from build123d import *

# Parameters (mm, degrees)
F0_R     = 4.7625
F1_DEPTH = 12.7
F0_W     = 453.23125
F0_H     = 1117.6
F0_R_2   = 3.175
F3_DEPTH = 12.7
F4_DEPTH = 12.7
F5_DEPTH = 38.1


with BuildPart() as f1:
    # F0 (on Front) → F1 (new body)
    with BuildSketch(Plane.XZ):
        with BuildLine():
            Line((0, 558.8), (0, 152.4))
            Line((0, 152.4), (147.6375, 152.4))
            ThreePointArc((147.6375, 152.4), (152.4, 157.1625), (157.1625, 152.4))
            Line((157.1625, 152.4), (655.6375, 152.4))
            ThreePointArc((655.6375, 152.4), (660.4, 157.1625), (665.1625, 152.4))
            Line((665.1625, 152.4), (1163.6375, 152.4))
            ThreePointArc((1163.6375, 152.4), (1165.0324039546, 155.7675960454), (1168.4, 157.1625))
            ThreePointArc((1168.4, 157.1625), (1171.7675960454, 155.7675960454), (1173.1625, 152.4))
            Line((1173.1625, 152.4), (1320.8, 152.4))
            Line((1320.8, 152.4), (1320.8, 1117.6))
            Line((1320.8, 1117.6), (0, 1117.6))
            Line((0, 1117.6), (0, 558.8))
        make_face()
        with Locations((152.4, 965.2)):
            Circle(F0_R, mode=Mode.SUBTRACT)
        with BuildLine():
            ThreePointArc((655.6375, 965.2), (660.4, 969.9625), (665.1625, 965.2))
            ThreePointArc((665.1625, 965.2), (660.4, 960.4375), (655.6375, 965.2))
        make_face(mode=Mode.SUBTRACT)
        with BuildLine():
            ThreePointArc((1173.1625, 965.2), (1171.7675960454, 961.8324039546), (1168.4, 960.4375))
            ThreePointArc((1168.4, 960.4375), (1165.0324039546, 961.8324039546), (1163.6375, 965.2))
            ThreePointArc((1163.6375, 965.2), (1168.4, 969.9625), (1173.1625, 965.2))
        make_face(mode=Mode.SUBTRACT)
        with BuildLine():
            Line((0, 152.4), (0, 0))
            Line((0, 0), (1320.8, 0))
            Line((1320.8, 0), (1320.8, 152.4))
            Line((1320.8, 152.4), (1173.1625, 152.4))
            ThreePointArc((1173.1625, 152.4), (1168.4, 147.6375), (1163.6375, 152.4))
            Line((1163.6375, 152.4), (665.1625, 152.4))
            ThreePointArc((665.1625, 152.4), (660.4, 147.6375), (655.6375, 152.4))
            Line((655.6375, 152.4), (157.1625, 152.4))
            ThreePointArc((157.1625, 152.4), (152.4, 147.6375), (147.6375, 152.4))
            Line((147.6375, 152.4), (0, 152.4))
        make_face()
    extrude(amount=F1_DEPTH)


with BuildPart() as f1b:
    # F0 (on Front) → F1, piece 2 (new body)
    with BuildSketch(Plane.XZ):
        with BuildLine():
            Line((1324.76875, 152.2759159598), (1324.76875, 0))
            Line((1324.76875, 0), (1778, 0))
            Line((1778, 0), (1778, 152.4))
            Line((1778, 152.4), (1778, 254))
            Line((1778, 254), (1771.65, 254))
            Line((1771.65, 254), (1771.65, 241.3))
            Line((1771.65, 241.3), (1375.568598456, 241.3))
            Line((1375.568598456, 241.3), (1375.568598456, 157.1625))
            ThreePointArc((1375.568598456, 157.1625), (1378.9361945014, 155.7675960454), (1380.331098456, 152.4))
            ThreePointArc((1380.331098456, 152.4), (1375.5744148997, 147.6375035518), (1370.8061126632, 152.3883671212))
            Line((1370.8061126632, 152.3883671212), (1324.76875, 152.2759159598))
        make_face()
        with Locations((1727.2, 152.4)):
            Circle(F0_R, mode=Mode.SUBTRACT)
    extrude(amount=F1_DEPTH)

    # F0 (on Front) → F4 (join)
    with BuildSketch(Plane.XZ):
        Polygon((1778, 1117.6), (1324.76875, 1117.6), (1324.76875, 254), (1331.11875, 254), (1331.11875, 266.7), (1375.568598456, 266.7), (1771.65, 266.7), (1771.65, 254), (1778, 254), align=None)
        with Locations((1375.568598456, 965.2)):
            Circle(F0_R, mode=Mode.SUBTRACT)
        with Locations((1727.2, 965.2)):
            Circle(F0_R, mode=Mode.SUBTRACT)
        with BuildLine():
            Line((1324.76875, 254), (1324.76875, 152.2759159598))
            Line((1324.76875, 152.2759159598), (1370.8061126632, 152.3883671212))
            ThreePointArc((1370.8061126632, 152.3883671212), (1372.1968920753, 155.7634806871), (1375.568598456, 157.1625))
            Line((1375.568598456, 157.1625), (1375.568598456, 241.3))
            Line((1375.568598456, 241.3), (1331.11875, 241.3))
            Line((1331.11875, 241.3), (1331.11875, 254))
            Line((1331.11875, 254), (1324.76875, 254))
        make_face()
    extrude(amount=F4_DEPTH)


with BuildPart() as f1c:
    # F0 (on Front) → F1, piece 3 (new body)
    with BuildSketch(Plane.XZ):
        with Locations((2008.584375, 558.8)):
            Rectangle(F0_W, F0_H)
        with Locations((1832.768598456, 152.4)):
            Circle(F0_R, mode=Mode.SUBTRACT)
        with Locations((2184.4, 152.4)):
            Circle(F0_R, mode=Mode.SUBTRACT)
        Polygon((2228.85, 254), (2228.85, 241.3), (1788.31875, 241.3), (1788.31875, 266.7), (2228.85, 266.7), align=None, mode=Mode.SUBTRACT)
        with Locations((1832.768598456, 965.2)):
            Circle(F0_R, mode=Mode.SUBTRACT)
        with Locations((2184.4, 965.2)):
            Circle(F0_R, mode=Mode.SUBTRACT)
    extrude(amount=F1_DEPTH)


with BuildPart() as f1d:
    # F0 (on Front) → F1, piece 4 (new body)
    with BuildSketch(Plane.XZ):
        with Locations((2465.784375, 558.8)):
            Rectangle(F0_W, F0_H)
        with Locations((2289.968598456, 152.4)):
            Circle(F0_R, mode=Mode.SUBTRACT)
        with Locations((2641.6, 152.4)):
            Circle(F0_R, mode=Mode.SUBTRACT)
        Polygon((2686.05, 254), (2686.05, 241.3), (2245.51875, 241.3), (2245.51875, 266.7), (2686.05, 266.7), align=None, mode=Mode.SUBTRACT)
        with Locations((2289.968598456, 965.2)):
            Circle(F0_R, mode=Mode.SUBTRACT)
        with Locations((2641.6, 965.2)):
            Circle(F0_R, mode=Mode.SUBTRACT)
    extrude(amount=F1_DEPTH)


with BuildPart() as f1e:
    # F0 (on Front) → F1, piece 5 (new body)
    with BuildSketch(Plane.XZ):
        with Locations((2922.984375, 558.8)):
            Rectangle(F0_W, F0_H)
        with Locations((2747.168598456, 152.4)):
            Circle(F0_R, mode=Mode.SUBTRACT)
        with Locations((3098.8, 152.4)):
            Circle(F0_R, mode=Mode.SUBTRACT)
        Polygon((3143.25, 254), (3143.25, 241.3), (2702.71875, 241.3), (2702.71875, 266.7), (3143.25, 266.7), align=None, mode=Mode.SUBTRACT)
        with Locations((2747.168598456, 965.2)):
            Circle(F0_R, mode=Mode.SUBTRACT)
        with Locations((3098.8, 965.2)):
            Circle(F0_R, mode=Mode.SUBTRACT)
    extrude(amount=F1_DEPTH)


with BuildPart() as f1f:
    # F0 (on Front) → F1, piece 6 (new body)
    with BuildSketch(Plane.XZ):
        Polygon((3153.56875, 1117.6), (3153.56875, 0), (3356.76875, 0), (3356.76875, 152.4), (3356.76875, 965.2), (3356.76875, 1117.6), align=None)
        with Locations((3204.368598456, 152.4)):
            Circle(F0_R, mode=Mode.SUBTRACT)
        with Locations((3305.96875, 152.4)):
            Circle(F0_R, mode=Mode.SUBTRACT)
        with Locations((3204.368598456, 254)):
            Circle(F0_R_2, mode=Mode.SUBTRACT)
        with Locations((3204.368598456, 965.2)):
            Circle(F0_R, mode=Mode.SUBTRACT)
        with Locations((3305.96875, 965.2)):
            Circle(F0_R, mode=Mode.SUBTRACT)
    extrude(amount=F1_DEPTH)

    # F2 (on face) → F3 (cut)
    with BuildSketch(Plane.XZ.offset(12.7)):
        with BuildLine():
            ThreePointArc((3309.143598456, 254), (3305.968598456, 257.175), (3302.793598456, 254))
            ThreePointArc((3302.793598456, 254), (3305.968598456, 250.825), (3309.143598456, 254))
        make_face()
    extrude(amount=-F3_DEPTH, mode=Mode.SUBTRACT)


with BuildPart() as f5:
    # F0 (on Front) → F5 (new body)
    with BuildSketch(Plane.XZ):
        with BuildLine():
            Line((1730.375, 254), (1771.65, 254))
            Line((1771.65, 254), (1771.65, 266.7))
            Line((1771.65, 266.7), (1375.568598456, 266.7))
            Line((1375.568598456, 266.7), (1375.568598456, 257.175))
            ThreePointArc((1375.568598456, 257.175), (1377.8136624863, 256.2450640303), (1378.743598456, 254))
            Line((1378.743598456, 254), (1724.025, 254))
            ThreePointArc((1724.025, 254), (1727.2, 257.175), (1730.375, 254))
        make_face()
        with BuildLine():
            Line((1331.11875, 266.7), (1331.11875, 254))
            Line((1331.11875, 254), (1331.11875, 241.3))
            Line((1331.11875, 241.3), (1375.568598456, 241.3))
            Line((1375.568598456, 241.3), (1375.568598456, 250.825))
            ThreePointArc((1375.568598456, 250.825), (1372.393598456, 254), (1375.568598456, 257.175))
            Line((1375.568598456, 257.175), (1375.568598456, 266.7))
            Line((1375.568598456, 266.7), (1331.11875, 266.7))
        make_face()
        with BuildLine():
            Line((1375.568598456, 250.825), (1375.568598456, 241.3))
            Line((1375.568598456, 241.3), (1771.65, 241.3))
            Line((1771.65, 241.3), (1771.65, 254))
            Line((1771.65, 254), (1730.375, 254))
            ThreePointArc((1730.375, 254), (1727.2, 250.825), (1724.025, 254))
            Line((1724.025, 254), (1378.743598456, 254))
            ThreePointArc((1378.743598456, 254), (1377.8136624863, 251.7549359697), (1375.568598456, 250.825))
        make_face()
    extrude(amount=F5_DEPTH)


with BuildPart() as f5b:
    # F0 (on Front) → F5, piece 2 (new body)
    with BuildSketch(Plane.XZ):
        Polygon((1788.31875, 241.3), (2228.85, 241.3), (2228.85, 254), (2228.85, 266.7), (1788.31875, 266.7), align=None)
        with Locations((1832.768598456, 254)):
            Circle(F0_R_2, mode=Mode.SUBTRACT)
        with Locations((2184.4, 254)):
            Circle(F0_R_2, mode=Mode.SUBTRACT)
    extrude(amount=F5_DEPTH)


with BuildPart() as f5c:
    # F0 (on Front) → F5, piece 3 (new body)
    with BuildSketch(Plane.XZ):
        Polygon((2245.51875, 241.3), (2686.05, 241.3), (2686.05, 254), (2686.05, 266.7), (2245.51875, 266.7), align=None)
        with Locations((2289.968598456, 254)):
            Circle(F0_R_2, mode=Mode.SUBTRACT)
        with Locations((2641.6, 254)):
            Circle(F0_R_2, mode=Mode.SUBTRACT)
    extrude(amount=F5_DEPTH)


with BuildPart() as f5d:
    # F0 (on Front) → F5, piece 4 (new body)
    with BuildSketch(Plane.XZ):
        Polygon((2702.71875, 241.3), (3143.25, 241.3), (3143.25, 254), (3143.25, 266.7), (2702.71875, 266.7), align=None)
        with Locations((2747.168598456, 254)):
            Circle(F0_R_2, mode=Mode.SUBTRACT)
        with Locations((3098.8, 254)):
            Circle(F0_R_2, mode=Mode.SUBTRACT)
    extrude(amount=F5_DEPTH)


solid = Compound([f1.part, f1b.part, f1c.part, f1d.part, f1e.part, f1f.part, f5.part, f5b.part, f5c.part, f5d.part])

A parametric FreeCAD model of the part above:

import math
import FreeCAD as App
import Part
import Sketcher
Q = App.Units.Quantity

doc = App.newDocument("Part")
body = doc.addObject("PartDesign::Body", "Body")

# Sketch on XZ plane
sketch1 = doc.addObject("Sketcher::SketchObject", "Sketch")
body.addObject(sketch1)
sketch1.AttachmentSupport = (doc.XZ_Plane, [""])
sketch1.MapMode = "FlatFace"
sketch1.addGeometry(Part.LineSegment(App.Vector(0, 1117.6, 0), App.Vector(0, 0, 0)), False)
sketch1.addGeometry(Part.LineSegment(App.Vector(0, 0, 0), App.Vector(1320.8, 0, 0)), False)
sketch1.addGeometry(Part.LineSegment(App.Vector(1320.8, 0, 0), App.Vector(1320.8, 1117.6, 0)), False)
sketch1.addGeometry(Part.LineSegment(App.Vector(1320.8, 1117.6, 0), App.Vector(0, 1117.6, 0)), False)
sketch1.addGeometry(Part.Circle(App.Vector(152.4, 152.4, 0), App.Vector(0, 0, 1), 4.8), False)
sketch1.addGeometry(Part.Circle(App.Vector(660.4, 152.4, 0), App.Vector(0, 0, 1), 4.8), False)
sketch1.addGeometry(Part.Circle(App.Vector(1168.4, 152.4, 0), App.Vector(0, 0, 1), 4.8), False)
sketch1.addGeometry(Part.Circle(App.Vector(152.4, 965.2, 0), App.Vector(0, 0, 1), 4.8), False)
sketch1.addGeometry(Part.Circle(App.Vector(660.4, 965.2, 0), App.Vector(0, 0, 1), 4.8), False)
sketch1.addGeometry(Part.Circle(App.Vector(1168.4, 965.2, 0), App.Vector(0, 0, 1), 4.8), False)
sketch1.addConstraint(Sketcher.Constraint("Coincident", 0, 2, 1, 1))
sketch1.addConstraint(Sketcher.Constraint("Coincident", 1, 2, 2, 1))
sketch1.addConstraint(Sketcher.Constraint("Coincident", 2, 2, 3, 1))
sketch1.addConstraint(Sketcher.Constraint("Coincident", 3, 2, 0, 1))
sketch1.addConstraint(Sketcher.Constraint("Vertical", 0))
sketch1.addConstraint(Sketcher.Constraint("Horizontal", 1))
sketch1.addConstraint(Sketcher.Constraint("Vertical", 2))
sketch1.addConstraint(Sketcher.Constraint("Horizontal", 3))
sketch1.addConstraint(Sketcher.Constraint("Coincident", 0, 2, -1, 1))
sketch1.addConstraint(Sketcher.Constraint("Equal", 4, 5))
sketch1.addConstraint(Sketcher.Constraint("Equal", 5, 6))
sketch1.addConstraint(Sketcher.Constraint("Equal", 6, 7))
sketch1.addConstraint(Sketcher.Constraint("Equal", 7, 8))
sketch1.addConstraint(Sketcher.Constraint("Equal", 8, 9))
sketch1.addConstraint(Sketcher.Constraint("Horizontal", 4, 3, 5, 3))
sketch1.addConstraint(Sketcher.Constraint("Horizontal", 5, 3, 6, 3))
sketch1.addConstraint(Sketcher.Constraint("Horizontal", 7, 3, 8, 3))
sketch1.addConstraint(Sketcher.Constraint("Horizontal", 8, 3, 9, 3))
sketch1.addConstraint(Sketcher.Constraint("Vertical", 4, 3, 7, 3))
sketch1.addConstraint(Sketcher.Constraint("Vertical", 5, 3, 8, 3))
sketch1.addConstraint(Sketcher.Constraint("Vertical", 6, 3, 9, 3))
sketch1.addConstraint(Sketcher.Constraint("DistanceX", 1, 1, 1, 2, Q("52 in")))
sketch1.addConstraint(Sketcher.Constraint("DistanceY", 0, 2, 0, 1, Q("44 in")))
sketch1.addConstraint(Sketcher.Constraint("Diameter", 4, Q("0.375 in")))
sketch1.addConstraint(Sketcher.Constraint("DistanceX", -1, 1, 4, 3, Q("6 in")))
sketch1.addConstraint(Sketcher.Constraint("DistanceY", -1, 1, 4, 3, Q("6 in")))
sketch1.addConstraint(Sketcher.Constraint("DistanceX", -1, 1, 5, 3, Q("26 in")))
sketch1.addConstraint(Sketcher.Constraint("DistanceX", -1, 1, 6, 3, Q("46 in")))
sketch1.addConstraint(Sketcher.Constraint("DistanceY", -1, 1, 7, 3, Q("38 in")))
pad1 = doc.addObject("PartDesign::Pad", "Pad")
body.addObject(pad1)
pad1.Profile = sketch1
pad1.Length = Q("0.5 in")
body2 = doc.addObject("PartDesign::Body", "Body001")

# Sketch on XZ plane
sketch2 = doc.addObject("Sketcher::SketchObject", "Sketch001")
body2.addObject(sketch2)
sketch2.AttachmentSupport = (doc.getObject("XZ_Plane001"), [""])
sketch2.MapMode = "FlatFace"
sketch2.addGeometry(Part.LineSegment(App.Vector(1324.8, 152.3, 0), App.Vector(1324.8, 0, 0)), False)
sketch2.addGeometry(Part.LineSegment(App.Vector(1324.8, 0, 0), App.Vector(1778, 0, 0)), False)
sketch2.addGeometry(Part.LineSegment(App.Vector(1778, 0, 0), App.Vector(1778, 254, 0)), False)
sketch2.addGeometry(Part.LineSegment(App.Vector(1778, 254, 0), App.Vector(1771.7, 254, 0)), False)
sketch2.addGeometry(Part.LineSegment(App.Vector(1771.7, 254, 0), App.Vector(1771.7, 241.3, 0)), False)
sketch2.addGeometry(Part.LineSegment(App.Vector(1771.7, 241.3, 0), App.Vector(1375.6, 241.3, 0)), False)
sketch2.addGeometry(Part.LineSegment(App.Vector(1375.6, 241.3, 0), App.Vector(1375.6, 157.2, 0)), False)
sketch2.addGeometry(Part.ArcOfCircle(Part.Circle(App.Vector(1375.6, 152.4, 0), App.Vector(0, 0, 1), 4.8), math.radians(0), math.radians(90)), False)
sketch2.addGeometry(Part.ArcOfCircle(Part.Circle(App.Vector(1375.6, 152.4, 0), App.Vector(0, 0, 1), 4.8), math.radians(-180), math.radians(0)), False)
sketch2.addGeometry(Part.LineSegment(App.Vector(1370.8, 152.4, 0), App.Vector(1324.8, 152.3, 0)), False)
sketch2.addGeometry(Part.Circle(App.Vector(1727.2, 152.4, 0), App.Vector(0, 0, 1), 4.8), False)
sketch2.addConstraint(Sketcher.Constraint("Coincident", 0, 2, 1, 1))
sketch2.addConstraint(Sketcher.Constraint("Coincident", 1, 2, 2, 1))
sketch2.addConstraint(Sketcher.Constraint("Coincident", 2, 2, 3, 1))
sketch2.addConstraint(Sketcher.Constraint("Coincident", 3, 2, 4, 1))
sketch2.addConstraint(Sketcher.Constraint("Coincident", 4, 2, 5, 1))
sketch2.addConstraint(Sketcher.Constraint("Coincident", 5, 2, 6, 1))
sketch2.addConstraint(Sketcher.Constraint("Coincident", 6, 2, 7, 2))
sketch2.addConstraint(Sketcher.Constraint("Tangent", 7, 1, 8, 2))
sketch2.addConstraint(Sketcher.Constraint("Coincident", 8, 1, 9, 1))
sketch2.addConstraint(Sketcher.Constraint("Coincident", 9, 2, 0, 1))
sketch2.addConstraint(Sketcher.Constraint("Vertical", 0))
sketch2.addConstraint(Sketcher.Constraint("Horizontal", 1))
sketch2.addConstraint(Sketcher.Constraint("Vertical", 2))
sketch2.addConstraint(Sketcher.Constraint("Horizontal", 3))
sketch2.addConstraint(Sketcher.Constraint("Vertical", 4))
sketch2.addConstraint(Sketcher.Constraint("Horizontal", 5))
sketch2.addConstraint(Sketcher.Constraint("Vertical", 6))
sketch2.addConstraint(Sketcher.Constraint("Equal", 7, 8))
sketch2.addConstraint(Sketcher.Constraint("Equal", 8, 10))
sketch2.addConstraint(Sketcher.Constraint("PointOnObject", 0, 2, -1))
sketch2.addConstraint(Sketcher.Constraint("Horizontal", 8, 3, 10, 3))
sketch2.addConstraint(Sketcher.Constraint("Horizontal", 10, 3, 7, 1))
sketch2.addConstraint(Sketcher.Constraint("Vertical", 8, 3, 5, 2))
sketch2.addConstraint(Sketcher.Constraint("DistanceY", 2, 1, 2, 2, Q("10 in")))
sketch2.addConstraint(Sketcher.Constraint("Diameter", 10, Q("0.375 in")))
sketch2.addConstraint(Sketcher.Constraint("DistanceY", 4, 2, 4, 1, Q("0.5 in")))
sketch2.addConstraint(Sketcher.Constraint("DistanceY", -1, 1, 7, 3, Q("6 in")))
sketch2.addConstraint(Sketcher.Constraint("DistanceX", -1, 1, 10, 3, Q("68 in")))
sketch2.addConstraint(Sketcher.Constraint("DistanceX", -1, 1, 1, 2, Q("70 in")))
sketch2.addConstraint(Sketcher.Constraint("DistanceX", 3, 2, 3, 1, Q("0.25 in")))
sketch2.addConstraint(Sketcher.Constraint("DistanceX", 1, 1, 1, 2, Q("17.84375 in")))
sketch2.addConstraint(Sketcher.Constraint("Distance", 9, Q("1.8125 in")))
sketch2.addConstraint(Sketcher.Constraint("DistanceY", 0, 2, 0, 1, Q("152.275916 mm")))
sketch2.addConstraint(Sketcher.Constraint("DistanceY", 9, 2, 8, 1, Q("0.112451 mm")))
pad2 = doc.addObject("PartDesign::Pad", "Pad001")
body2.addObject(pad2)
pad2.Profile = sketch2
pad2.Length = Q("0.5 in")

# Sketch on XZ plane
sketch3 = doc.addObject("Sketcher::SketchObject", "Sketch002")
body2.addObject(sketch3)
sketch3.AttachmentSupport = (doc.getObject("XZ_Plane001"), [""])
sketch3.MapMode = "FlatFace"
sketch3.addGeometry(Part.LineSegment(App.Vector(1778, 1117.6, 0), App.Vector(1324.8, 1117.6, 0)), False)
sketch3.addGeometry(Part.LineSegment(App.Vector(1324.8, 1117.6, 0), App.Vector(1324.8, 152.3, 0)), False)
sketch3.addGeometry(Part.LineSegment(App.Vector(1324.8, 152.3, 0), App.Vector(1370.8, 152.4, 0)), False)
sketch3.addGeometry(Part.ArcOfCircle(Part.Circle(App.Vector(1375.6, 152.4, 0), App.Vector(0, 0, 1), 4.8), math.radians(90), math.radians(180)), False)
sketch3.addGeometry(Part.LineSegment(App.Vector(1375.6, 157.2, 0), App.Vector(1375.6, 241.3, 0)), False)
sketch3.addGeometry(Part.LineSegment(App.Vector(1375.6, 241.3, 0), App.Vector(1331.1, 241.3, 0)), False)
sketch3.addGeometry(Part.LineSegment(App.Vector(1331.1, 241.3, 0), App.Vector(1331.1, 266.7, 0)), False)
sketch3.addGeometry(Part.LineSegment(App.Vector(1331.1, 266.7, 0), App.Vector(1771.7, 266.7, 0)), False)
sketch3.addGeometry(Part.LineSegment(App.Vector(1771.7, 266.7, 0), App.Vector(1771.7, 254, 0)), False)
sketch3.addGeometry(Part.LineSegment(App.Vector(1771.7, 254, 0), App.Vector(1778, 254, 0)), False)
sketch3.addGeometry(Part.LineSegment(App.Vector(1778, 254, 0), App.Vector(1778, 1117.6, 0)), False)
sketch3.addGeometry(Part.Circle(App.Vector(1375.6, 965.2, 0), App.Vector(0, 0, 1), 4.8), False)
sketch3.addGeometry(Part.Circle(App.Vector(1727.2, 965.2, 0), App.Vector(0, 0, 1), 4.8), False)
sketch3.addConstraint(Sketcher.Constraint("Coincident", 0, 2, 1, 1))
sketch3.addConstraint(Sketcher.Constraint("Coincident", 1, 2, 2, 1))
sketch3.addConstraint(Sketcher.Constraint("Coincident", 2, 2, 3, 2))
sketch3.addConstraint(Sketcher.Constraint("Coincident", 3, 1, 4, 1))
sketch3.addConstraint(Sketcher.Constraint("Coincident", 4, 2, 5, 1))
sketch3.addConstraint(Sketcher.Constraint("Coincident", 5, 2, 6, 1))
sketch3.addConstraint(Sketcher.Constraint("Coincident", 6, 2, 7, 1))
sketch3.addConstraint(Sketcher.Constraint("Coincident", 7, 2, 8, 1))
sketch3.addConstraint(Sketcher.Constraint("Coincident", 8, 2, 9, 1))
sketch3.addConstraint(Sketcher.Constraint("Coincident", 9, 2, 10, 1))
sketch3.addConstraint(Sketcher.Constraint("Coincident", 10, 2, 0, 1))
sketch3.addConstraint(Sketcher.Constraint("Horizontal", 0))
sketch3.addConstraint(Sketcher.Constraint("Vertical", 1))
sketch3.addConstraint(Sketcher.Constraint("Vertical", 4))
sketch3.addConstraint(Sketcher.Constraint("Horizontal", 5))
sketch3.addConstraint(Sketcher.Constraint("Vertical", 6))
sketch3.addConstraint(Sketcher.Constraint("Horizontal", 7))
sketch3.addConstraint(Sketcher.Constraint("Vertical", 8))
sketch3.addConstraint(Sketcher.Constraint("Horizontal", 9))
sketch3.addConstraint(Sketcher.Constraint("Vertical", 10))
sketch3.addConstraint(Sketcher.Constraint("Equal", 3, 11))
sketch3.addConstraint(Sketcher.Constraint("Equal", 11, 12))
sketch3.addConstraint(Sketcher.Constraint("Horizontal", 11, 3, 12, 3))
sketch3.addConstraint(Sketcher.Constraint("Vertical", 3, 3, 11, 3))
sketch3.addConstraint(Sketcher.Constraint("Vertical", 11, 3, 3, 1))
sketch3.addConstraint(Sketcher.Constraint("DistanceY", 6, 1, 6, 2, Q("1 in")))
sketch3.addConstraint(Sketcher.Constraint("DistanceY", 10, 1, 10, 2, Q("34 in")))
sketch3.addConstraint(Sketcher.Constraint("Diameter", 11, Q("0.375 in")))
sketch3.addConstraint(Sketcher.Constraint("DistanceY", 8, 2, 8, 1, Q("0.5 in")))
sketch3.addConstraint(Sketcher.Constraint("DistanceY", -1, 1, 3, 3, Q("6 in")))
sketch3.addConstraint(Sketcher.Constraint("DistanceY", -1, 1, 11, 3, Q("38 in")))
sketch3.addConstraint(Sketcher.Constraint("DistanceX", -1, 1, 12, 3, Q("68 in")))
sketch3.addConstraint(Sketcher.Constraint("DistanceY", -1, 1, 0, 2, Q("44 in")))
sketch3.addConstraint(Sketcher.Constraint("DistanceX", -1, 1, 9, 2, Q("70 in")))
sketch3.addConstraint(Sketcher.Constraint("DistanceX", 9, 1, 9, 2, Q("0.25 in")))
sketch3.addConstraint(Sketcher.Constraint("DistanceX", 0, 2, 0, 1, Q("17.84375 in")))
sketch3.addConstraint(Sketcher.Constraint("DistanceX", 7, 1, 7, 2, Q("17.34375 in")))
sketch3.addConstraint(Sketcher.Constraint("Distance", 2, Q("1.8125 in")))
sketch3.addConstraint(Sketcher.Constraint("DistanceY", 1, 2, 1, 1, Q("965.324084 mm")))
sketch3.addConstraint(Sketcher.Constraint("DistanceY", 1, 2, 2, 2, Q("0.112451 mm")))
pad3 = doc.addObject("PartDesign::Pad", "Pad002")
body2.addObject(pad3)
pad3.Profile = sketch3
pad3.Length = Q("0.5 in")
body3 = doc.addObject("PartDesign::Body", "Body002")

# Sketch on XZ plane
sketch4 = doc.addObject("Sketcher::SketchObject", "Sketch003")
body3.addObject(sketch4)
sketch4.AttachmentSupport = (doc.getObject("XZ_Plane002"), [""])
sketch4.MapMode = "FlatFace"
sketch4.addGeometry(Part.LineSegment(App.Vector(1782, 1117.6, 0), App.Vector(1782, 0, 0)), False)
sketch4.addGeometry(Part.LineSegment(App.Vector(1782, 0, 0), App.Vector(2235.2, 0, 0)), False)
sketch4.addGeometry(Part.LineSegment(App.Vector(2235.2, 0, 0), App.Vector(2235.2, 1117.6, 0)), False)
sketch4.addGeometry(Part.LineSegment(App.Vector(2235.2, 1117.6, 0), App.Vector(1782, 1117.6, 0)), False)
sketch4.addGeometry(Part.Circle(App.Vector(1832.8, 152.4, 0), App.Vector(0, 0, 1), 4.8), False)
sketch4.addGeometry(Part.LineSegment(App.Vector(2228.8, 266.7, 0), App.Vector(2228.8, 241.3, 0)), False)
sketch4.addGeometry(Part.LineSegment(App.Vector(2228.8, 241.3, 0), App.Vector(1788.3, 241.3, 0)), False)
sketch4.addGeometry(Part.LineSegment(App.Vector(1788.3, 241.3, 0), App.Vector(1788.3, 266.7, 0)), False)
sketch4.addGeometry(Part.LineSegment(App.Vector(1788.3, 266.7, 0), App.Vector(2228.8, 266.7, 0)), False)
sketch4.addGeometry(Part.Circle(App.Vector(2184.4, 152.4, 0), App.Vector(0, 0, 1), 4.8), False)
sketch4.addGeometry(Part.Circle(App.Vector(1832.8, 965.2, 0), App.Vector(0, 0, 1), 4.8), False)
sketch4.addGeometry(Part.Circle(App.Vector(2184.4, 965.2, 0), App.Vector(0, 0, 1), 4.8), False)
sketch4.addConstraint(Sketcher.Constraint("Coincident", 0, 2, 1, 1))
sketch4.addConstraint(Sketcher.Constraint("Coincident", 1, 2, 2, 1))
sketch4.addConstraint(Sketcher.Constraint("Coincident", 2, 2, 3, 1))
sketch4.addConstraint(Sketcher.Constraint("Coincident", 3, 2, 0, 1))
sketch4.addConstraint(Sketcher.Constraint("Coincident", 5, 2, 6, 1))
sketch4.addConstraint(Sketcher.Constraint("Coincident", 6, 2, 7, 1))
sketch4.addConstraint(Sketcher.Constraint("Coincident", 7, 2, 8, 1))
sketch4.addConstraint(Sketcher.Constraint("Coincident", 8, 2, 5, 1))
sketch4.addConstraint(Sketcher.Constraint("Vertical", 0))
sketch4.addConstraint(Sketcher.Constraint("Horizontal", 1))
sketch4.addConstraint(Sketcher.Constraint("Vertical", 2))
sketch4.addConstraint(Sketcher.Constraint("Horizontal", 3))
sketch4.addConstraint(Sketcher.Constraint("Vertical", 5))
sketch4.addConstraint(Sketcher.Constraint("Horizontal", 6))
sketch4.addConstraint(Sketcher.Constraint("Vertical", 7))
sketch4.addConstraint(Sketcher.Constraint("Horizontal", 8))
sketch4.addConstraint(Sketcher.Constraint("Equal", 4, 9))
sketch4.addConstraint(Sketcher.Constraint("Equal", 9, 10))
sketch4.addConstraint(Sketcher.Constraint("Equal", 10, 11))
sketch4.addConstraint(Sketcher.Constraint("PointOnObject", 0, 2, -1))
sketch4.addConstraint(Sketcher.Constraint("Horizontal", 4, 3, 9, 3))
sketch4.addConstraint(Sketcher.Constraint("Horizontal", 10, 3, 11, 3))
sketch4.addConstraint(Sketcher.Constraint("Vertical", 4, 3, 10, 3))
sketch4.addConstraint(Sketcher.Constraint("Vertical", 9, 3, 11, 3))
sketch4.addConstraint(Sketcher.Constraint("DistanceY", 0, 2, 0, 1, Q("44 in")))
sketch4.addConstraint(Sketcher.Constraint("DistanceY", 5, 2, 5, 1, Q("1 in")))
sketch4.addConstraint(Sketcher.Constraint("Diameter", 4, Q("0.375 in")))
sketch4.addConstraint(Sketcher.Constraint("DistanceY", -1, 1, 4, 3, Q("6 in")))
sketch4.addConstraint(Sketcher.Constraint("DistanceX", -1, 1, 9, 3, Q("86 in")))
sketch4.addConstraint(Sketcher.Constraint("DistanceY", -1, 1, 10, 3, Q("38 in")))
sketch4.addConstraint(Sketcher.Constraint("DistanceX", -1, 1, 1, 2, Q("88 in")))
sketch4.addConstraint(Sketcher.Constraint("DistanceY", -1, 1, 5, 2, Q("9.5 in")))
sketch4.addConstraint(Sketcher.Constraint("DistanceX", 1, 1, 1, 2, Q("17.84375 in")))
sketch4.addConstraint(Sketcher.Constraint("DistanceX", 6, 2, 6, 1, Q("17.34375 in")))
sketch4.addConstraint(Sketcher.Constraint("DistanceX", -1, 1, 5, 2, Q("87.75 in")))
sketch4.addConstraint(Sketcher.Constraint("DistanceX", -1, 1, 4, 3, Q("1832.768598 mm")))
pad4 = doc.addObject("PartDesign::Pad", "Pad003")
body3.addObject(pad4)
pad4.Profile = sketch4
pad4.Length = Q("0.5 in")
body4 = doc.addObject("PartDesign::Body", "Body003")

# Sketch on XZ plane
sketch5 = doc.addObject("Sketcher::SketchObject", "Sketch004")
body4.addObject(sketch5)
sketch5.AttachmentSupport = (doc.getObject("XZ_Plane003"), [""])
sketch5.MapMode = "FlatFace"
sketch5.addGeometry(Part.LineSegment(App.Vector(2239.2, 1117.6, 0), App.Vector(2239.2, 0, 0)), False)
sketch5.addGeometry(Part.LineSegment(App.Vector(2239.2, 0, 0), App.Vector(2692.4, 0, 0)), False)
sketch5.addGeometry(Part.LineSegment(App.Vector(2692.4, 0, 0), App.Vector(2692.4, 1117.6, 0)), False)
sketch5.addGeometry(Part.LineSegment(App.Vector(2692.4, 1117.6, 0), App.Vector(2239.2, 1117.6, 0)), False)
sketch5.addGeometry(Part.Circle(App.Vector(2290, 152.4, 0), App.Vector(0, 0, 1), 4.8), False)
sketch5.addGeometry(Part.LineSegment(App.Vector(2686.1, 266.7, 0), App.Vector(2686.1, 241.3, 0)), False)
sketch5.addGeometry(Part.LineSegment(App.Vector(2686.1, 241.3, 0), App.Vector(2245.5, 241.3, 0)), False)
sketch5.addGeometry(Part.LineSegment(App.Vector(2245.5, 241.3, 0), App.Vector(2245.5, 266.7, 0)), False)
sketch5.addGeometry(Part.LineSegment(App.Vector(2245.5, 266.7, 0), App.Vector(2686.1, 266.7, 0)), False)
sketch5.addGeometry(Part.Circle(App.Vector(2641.6, 152.4, 0), App.Vector(0, 0, 1), 4.8), False)
sketch5.addGeometry(Part.Circle(App.Vector(2290, 965.2, 0), App.Vector(0, 0, 1), 4.8), False)
sketch5.addGeometry(Part.Circle(App.Vector(2641.6, 965.2, 0), App.Vector(0, 0, 1), 4.8), False)
sketch5.addConstraint(Sketcher.Constraint("Coincident", 0, 2, 1, 1))
sketch5.addConstraint(Sketcher.Constraint("Coincident", 1, 2, 2, 1))
sketch5.addConstraint(Sketcher.Constraint("Coincident", 2, 2, 3, 1))
sketch5.addConstraint(Sketcher.Constraint("Coincident", 3, 2, 0, 1))
sketch5.addConstraint(Sketcher.Constraint("Coincident", 5, 2, 6, 1))
sketch5.addConstraint(Sketcher.Constraint("Coincident", 6, 2, 7, 1))
sketch5.addConstraint(Sketcher.Constraint("Coincident", 7, 2, 8, 1))
sketch5.addConstraint(Sketcher.Constraint("Coincident", 8, 2, 5, 1))
sketch5.addConstraint(Sketcher.Constraint("Vertical", 0))
sketch5.addConstraint(Sketcher.Constraint("Horizontal", 1))
sketch5.addConstraint(Sketcher.Constraint("Vertical", 2))
sketch5.addConstraint(Sketcher.Constraint("Horizontal", 3))
sketch5.addConstraint(Sketcher.Constraint("Vertical", 5))
sketch5.addConstraint(Sketcher.Constraint("Horizontal", 6))
sketch5.addConstraint(Sketcher.Constraint("Vertical", 7))
sketch5.addConstraint(Sketcher.Constraint("Horizontal", 8))
sketch5.addConstraint(Sketcher.Constraint("Equal", 4, 9))
sketch5.addConstraint(Sketcher.Constraint("Equal", 9, 10))
sketch5.addConstraint(Sketcher.Constraint("Equal", 10, 11))
sketch5.addConstraint(Sketcher.Constraint("PointOnObject", 0, 2, -1))
sketch5.addConstraint(Sketcher.Constraint("Horizontal", 4, 3, 9, 3))
sketch5.addConstraint(Sketcher.Constraint("Horizontal", 10, 3, 11, 3))
sketch5.addConstraint(Sketcher.Constraint("Vertical", 4, 3, 10, 3))
sketch5.addConstraint(Sketcher.Constraint("Vertical", 9, 3, 11, 3))
sketch5.addConstraint(Sketcher.Constraint("DistanceY", 0, 2, 0, 1, Q("44 in")))
sketch5.addConstraint(Sketcher.Constraint("DistanceY", 5, 2, 5, 1, Q("1 in")))
sketch5.addConstraint(Sketcher.Constraint("Diameter", 4, Q("0.375 in")))
sketch5.addConstraint(Sketcher.Constraint("DistanceY", -1, 1, 4, 3, Q("6 in")))
sketch5.addConstraint(Sketcher.Constraint("DistanceX", -1, 1, 9, 3, Q("104 in")))
sketch5.addConstraint(Sketcher.Constraint("DistanceY", -1, 1, 10, 3, Q("38 in")))
sketch5.addConstraint(Sketcher.Constraint("DistanceX", -1, 1, 1, 2, Q("106 in")))
sketch5.addConstraint(Sketcher.Constraint("DistanceY", -1, 1, 5, 2, Q("9.5 in")))
sketch5.addConstraint(Sketcher.Constraint("DistanceX", 1, 1, 1, 2, Q("17.84375 in")))
sketch5.addConstraint(Sketcher.Constraint("DistanceX", 6, 2, 6, 1, Q("17.34375 in")))
sketch5.addConstraint(Sketcher.Constraint("DistanceX", -1, 1, 5, 2, Q("105.75 in")))
sketch5.addConstraint(Sketcher.Constraint("DistanceX", -1, 1, 4, 3, Q("2289.968598 mm")))
pad5 = doc.addObject("PartDesign::Pad", "Pad004")
body4.addObject(pad5)
pad5.Profile = sketch5
pad5.Length = Q("0.5 in")
body5 = doc.addObject("PartDesign::Body", "Body004")

# Sketch on XZ plane
sketch6 = doc.addObject("Sketcher::SketchObject", "Sketch005")
body5.addObject(sketch6)
sketch6.AttachmentSupport = (doc.getObject("XZ_Plane004"), [""])
sketch6.MapMode = "FlatFace"
sketch6.addGeometry(Part.LineSegment(App.Vector(2696.4, 1117.6, 0), App.Vector(2696.4, 0, 0)), False)
sketch6.addGeometry(Part.LineSegment(App.Vector(2696.4, 0, 0), App.Vector(3149.6, 0, 0)), False)
sketch6.addGeometry(Part.LineSegment(App.Vector(3149.6, 0, 0), App.Vector(3149.6, 1117.6, 0)), False)
sketch6.addGeometry(Part.LineSegment(App.Vector(3149.6, 1117.6, 0), App.Vector(2696.4, 1117.6, 0)), False)
sketch6.addGeometry(Part.Circle(App.Vector(2747.2, 152.4, 0), App.Vector(0, 0, 1), 4.8), False)
sketch6.addGeometry(Part.LineSegment(App.Vector(3143.2, 266.7, 0), App.Vector(3143.2, 241.3, 0)), False)
sketch6.addGeometry(Part.LineSegment(App.Vector(3143.2, 241.3, 0), App.Vector(2702.7, 241.3, 0)), False)
sketch6.addGeometry(Part.LineSegment(App.Vector(2702.7, 241.3, 0), App.Vector(2702.7, 266.7, 0)), False)
sketch6.addGeometry(Part.LineSegment(App.Vector(2702.7, 266.7, 0), App.Vector(3143.2, 266.7, 0)), False)
sketch6.addGeometry(Part.Circle(App.Vector(3098.8, 152.4, 0), App.Vector(0, 0, 1), 4.8), False)
sketch6.addGeometry(Part.Circle(App.Vector(2747.2, 965.2, 0), App.Vector(0, 0, 1), 4.8), False)
sketch6.addGeometry(Part.Circle(App.Vector(3098.8, 965.2, 0), App.Vector(0, 0, 1), 4.8), False)
sketch6.addConstraint(Sketcher.Constraint("Coincident", 0, 2, 1, 1))
sketch6.addConstraint(Sketcher.Constraint("Coincident", 1, 2, 2, 1))
sketch6.addConstraint(Sketcher.Constraint("Coincident", 2, 2, 3, 1))
sketch6.addConstraint(Sketcher.Constraint("Coincident", 3, 2, 0, 1))
sketch6.addConstraint(Sketcher.Constraint("Coincident", 5, 2, 6, 1))
sketch6.addConstraint(Sketcher.Constraint("Coincident", 6, 2, 7, 1))
sketch6.addConstraint(Sketcher.Constraint("Coincident", 7, 2, 8, 1))
sketch6.addConstraint(Sketcher.Constraint("Coincident", 8, 2, 5, 1))
sketch6.addConstraint(Sketcher.Constraint("Vertical", 0))
sketch6.addConstraint(Sketcher.Constraint("Horizontal", 1))
sketch6.addConstraint(Sketcher.Constraint("Vertical", 2))
sketch6.addConstraint(Sketcher.Constraint("Horizontal", 3))
sketch6.addConstraint(Sketcher.Constraint("Vertical", 5))
sketch6.addConstraint(Sketcher.Constraint("Horizontal", 6))
sketch6.addConstraint(Sketcher.Constraint("Vertical", 7))
sketch6.addConstraint(Sketcher.Constraint("Horizontal", 8))
sketch6.addConstraint(Sketcher.Constraint("Equal", 4, 9))
sketch6.addConstraint(Sketcher.Constraint("Equal", 9, 10))
sketch6.addConstraint(Sketcher.Constraint("Equal", 10, 11))
sketch6.addConstraint(Sketcher.Constraint("PointOnObject", 0, 2, -1))
sketch6.addConstraint(Sketcher.Constraint("Horizontal", 4, 3, 9, 3))
sketch6.addConstraint(Sketcher.Constraint("Horizontal", 10, 3, 11, 3))
sketch6.addConstraint(Sketcher.Constraint("Vertical", 4, 3, 10, 3))
sketch6.addConstraint(Sketcher.Constraint("Vertical", 9, 3, 11, 3))
sketch6.addConstraint(Sketcher.Constraint("DistanceY", 0, 2, 0, 1, Q("44 in")))
sketch6.addConstraint(Sketcher.Constraint("DistanceY", 5, 2, 5, 1, Q("1 in")))
sketch6.addConstraint(Sketcher.Constraint("Diameter", 4, Q("0.375 in")))
sketch6.addConstraint(Sketcher.Constraint("DistanceY", -1, 1, 4, 3, Q("6 in")))
sketch6.addConstraint(Sketcher.Constraint("DistanceX", -1, 1, 9, 3, Q("122 in")))
sketch6.addConstraint(Sketcher.Constraint("DistanceY", -1, 1, 10, 3, Q("38 in")))
sketch6.addConstraint(Sketcher.Constraint("DistanceX", -1, 1, 1, 2, Q("124 in")))
sketch6.addConstraint(Sketcher.Constraint("DistanceY", -1, 1, 5, 2, Q("9.5 in")))
sketch6.addConstraint(Sketcher.Constraint("DistanceX", 1, 1, 1, 2, Q("17.84375 in")))
sketch6.addConstraint(Sketcher.Constraint("DistanceX", 6, 2, 6, 1, Q("17.34375 in")))
sketch6.addConstraint(Sketcher.Constraint("DistanceX", -1, 1, 5, 2, Q("123.75 in")))
sketch6.addConstraint(Sketcher.Constraint("DistanceX", -1, 1, 4, 3, Q("2747.168598 mm")))
pad6 = doc.addObject("PartDesign::Pad", "Pad005")
body5.addObject(pad6)
pad6.Profile = sketch6
pad6.Length = Q("0.5 in")
body6 = doc.addObject("PartDesign::Body", "Body005")

# Sketch on XZ plane
sketch7 = doc.addObject("Sketcher::SketchObject", "Sketch006")
body6.addObject(sketch7)
sketch7.AttachmentSupport = (doc.getObject("XZ_Plane005"), [""])
sketch7.MapMode = "FlatFace"
sketch7.addGeometry(Part.LineSegment(App.Vector(3153.6, 1117.6, 0), App.Vector(3153.6, 0, 0)), False)
sketch7.addGeometry(Part.LineSegment(App.Vector(3153.6, 0, 0), App.Vector(3356.8, 0, 0)), False)
sketch7.addGeometry(Part.LineSegment(App.Vector(3356.8, 0, 0), App.Vector(3356.8, 1117.6, 0)), False)
sketch7.addGeometry(Part.LineSegment(App.Vector(3356.8, 1117.6, 0), App.Vector(3153.6, 1117.6, 0)), False)
sketch7.addGeometry(Part.Circle(App.Vector(3204.4, 152.4, 0), App.Vector(0, 0, 1), 4.8), False)
sketch7.addGeometry(Part.Circle(App.Vector(3204.4, 254, 0), App.Vector(0, 0, 1), 3.2), False)
sketch7.addGeometry(Part.Circle(App.Vector(3306, 152.4, 0), App.Vector(0, 0, 1), 4.8), False)
sketch7.addGeometry(Part.Circle(App.Vector(3204.4, 965.2, 0), App.Vector(0, 0, 1), 4.8), False)
sketch7.addGeometry(Part.Circle(App.Vector(3306, 965.2, 0), App.Vector(0, 0, 1), 4.8), False)
sketch7.addConstraint(Sketcher.Constraint("Coincident", 0, 2, 1, 1))
sketch7.addConstraint(Sketcher.Constraint("Coincident", 1, 2, 2, 1))
sketch7.addConstraint(Sketcher.Constraint("Coincident", 2, 2, 3, 1))
sketch7.addConstraint(Sketcher.Constraint("Coincident", 3, 2, 0, 1))
sketch7.addConstraint(Sketcher.Constraint("Vertical", 0))
sketch7.addConstraint(Sketcher.Constraint("Horizontal", 1))
sketch7.addConstraint(Sketcher.Constraint("Vertical", 2))
sketch7.addConstraint(Sketcher.Constraint("Horizontal", 3))
sketch7.addConstraint(Sketcher.Constraint("Equal", 4, 6))
sketch7.addConstraint(Sketcher.Constraint("Equal", 6, 7))
sketch7.addConstraint(Sketcher.Constraint("Equal", 7, 8))
sketch7.addConstraint(Sketcher.Constraint("PointOnObject", 0, 2, -1))
sketch7.addConstraint(Sketcher.Constraint("Horizontal", 4, 3, 6, 3))
sketch7.addConstraint(Sketcher.Constraint("Horizontal", 7, 3, 8, 3))
sketch7.addConstraint(Sketcher.Constraint("Vertical", 4, 3, 5, 3))
sketch7.addConstraint(Sketcher.Constraint("Vertical", 5, 3, 7, 3))
sketch7.addConstraint(Sketcher.Constraint("Vertical", 6, 3, 8, 3))
sketch7.addConstraint(Sketcher.Constraint("Diameter", 5, Q("0.25 in")))
sketch7.addConstraint(Sketcher.Constraint("DistanceX", 1, 1, 1, 2, Q("8 in")))
sketch7.addConstraint(Sketcher.Constraint("DistanceY", 0, 2, 0, 1, Q("44 in")))
sketch7.addConstraint(Sketcher.Constraint("Diameter", 4, Q("0.375 in")))
sketch7.addConstraint(Sketcher.Constraint("DistanceY", -1, 1, 4, 3, Q("6 in")))
sketch7.addConstraint(Sketcher.Constraint("DistanceY", -1, 1, 5, 3, Q("10 in")))
sketch7.addConstraint(Sketcher.Constraint("DistanceY", -1, 1, 7, 3, Q("38 in")))
sketch7.addConstraint(Sketcher.Constraint("DistanceX", 0, 2, 6, 3, Q("6 in")))
sketch7.addConstraint(Sketcher.Constraint("DistanceX", -1, 1, 6, 3, Q("130.15625 in")))
sketch7.addConstraint(Sketcher.Constraint("DistanceX", -1, 1, 4, 3, Q("3204.368598 mm")))
pad7 = doc.addObject("PartDesign::Pad", "Pad006")
body6.addObject(pad7)
pad7.Profile = sketch7
pad7.Length = Q("0.5 in")

# Sketch on XZ plane
sketch8 = doc.addObject("Sketcher::SketchObject", "Sketch007")
body6.addObject(sketch8)
sketch8.AttachmentSupport = (doc.getObject("XZ_Plane005"), [""])
sketch8.MapMode = "FlatFace"
sketch8.AttachmentOffset = App.Placement(App.Vector(0, 0, 0.5 * 25.4), App.Rotation())
sketch8.addGeometry(Part.Circle(App.Vector(3306, 254, 0), App.Vector(0, 0, 1), 3.2), False)
sketch8.addConstraint(Sketcher.Constraint("Diameter", 0, Q("0.25 in")))
sketch8.addConstraint(Sketcher.Constraint("DistanceY", -1, 1, 0, 3, Q("10 in")))
sketch8.addConstraint(Sketcher.Constraint("DistanceX", -1, 1, 0, 3, Q("3305.968598 mm")))
pocket1 = doc.addObject("PartDesign::Pocket", "Pocket")
body6.addObject(pocket1)
pocket1.Profile = sketch8
pocket1.Length = Q("0.5 in")
body7 = doc.addObject("PartDesign::Body", "Body006")

# Sketch on XZ plane
sketch9 = doc.addObject("Sketcher::SketchObject", "Sketch008")
body7.addObject(sketch9)
sketch9.AttachmentSupport = (doc.getObject("XZ_Plane006"), [""])
sketch9.MapMode = "FlatFace"
sketch9.addGeometry(Part.LineSegment(App.Vector(1771.7, 266.7, 0), App.Vector(1331.1, 266.7, 0)), False)
sketch9.addGeometry(Part.LineSegment(App.Vector(1331.1, 266.7, 0), App.Vector(1331.1, 241.3, 0)), False)
sketch9.addGeometry(Part.LineSegment(App.Vector(1331.1, 241.3, 0), App.Vector(1771.7, 241.3, 0)), False)
sketch9.addGeometry(Part.LineSegment(App.Vector(1771.7, 241.3, 0), App.Vector(1771.7, 266.7, 0)), False)
sketch9.addGeometry(Part.ArcOfCircle(Part.Circle(App.Vector(1375.6, 254, 0), App.Vector(0, 0, 1), 3.2), math.radians(90), math.radians(270)), False)
sketch9.addGeometry(Part.ArcOfCircle(Part.Circle(App.Vector(1375.6, 254, 0), App.Vector(0, 0, 1), 3.2), math.radians(0), math.radians(90)), False)
sketch9.addGeometry(Part.ArcOfCircle(Part.Circle(App.Vector(1375.6, 254, 0), App.Vector(0, 0, 1), 3.2), math.radians(-90), math.radians(0)), False)
sketch9.addGeometry(Part.Circle(App.Vector(1727.2, 254, 0), App.Vector(0, 0, 1), 3.2), False)
sketch9.addConstraint(Sketcher.Constraint("Coincident", 0, 2, 1, 1))
sketch9.addConstraint(Sketcher.Constraint("Coincident", 1, 2, 2, 1))
sketch9.addConstraint(Sketcher.Constraint("Coincident", 2, 2, 3, 1))
sketch9.addConstraint(Sketcher.Constraint("Coincident", 3, 2, 0, 1))
sketch9.addConstraint(Sketcher.Constraint("Tangent", 4, 1, 5, 2))
sketch9.addConstraint(Sketcher.Constraint("Tangent", 5, 1, 6, 2))
sketch9.addConstraint(Sketcher.Constraint("Tangent", 6, 1, 4, 2))
sketch9.addConstraint(Sketcher.Constraint("Horizontal", 0))
sketch9.addConstraint(Sketcher.Constraint("Vertical", 1))
sketch9.addConstraint(Sketcher.Constraint("Horizontal", 2))
sketch9.addConstraint(Sketcher.Constraint("Vertical", 3))
sketch9.addConstraint(Sketcher.Constraint("Equal", 6, 7))
sketch9.addConstraint(Sketcher.Constraint("Horizontal", 6, 3, 7, 3))
sketch9.addConstraint(Sketcher.Constraint("Horizontal", 7, 3, 5, 1))
sketch9.addConstraint(Sketcher.Constraint("Vertical", 6, 3, 4, 1))
sketch9.addConstraint(Sketcher.Constraint("Vertical", 4, 1, 6, 1))
sketch9.addConstraint(Sketcher.Constraint("Diameter", 7, Q("0.25 in")))
sketch9.addConstraint(Sketcher.Constraint("DistanceY", 1, 2, 1, 1, Q("1 in")))
sketch9.addConstraint(Sketcher.Constraint("DistanceY", -1, 1, 4, 3, Q("10 in")))
sketch9.addConstraint(Sketcher.Constraint("DistanceX", -1, 1, 7, 3, Q("68 in")))
sketch9.addConstraint(Sketcher.Constraint("DistanceY", -1, 1, 0, 2, Q("10.5 in")))
sketch9.addConstraint(Sketcher.Constraint("DistanceX", 0, 2, 0, 1, Q("17.34375 in")))
sketch9.addConstraint(Sketcher.Constraint("DistanceX", -1, 1, 2, 2, Q("69.75 in")))
sketch9.addConstraint(Sketcher.Constraint("DistanceX", -1, 1, 4, 3, Q("1375.568598 mm")))
pad8 = doc.addObject("PartDesign::Pad", "Pad007")
body7.addObject(pad8)
pad8.Profile = sketch9
pad8.Length = Q("1.5 in")
body8 = doc.addObject("PartDesign::Body", "Body007")

# Sketch on XZ plane
sketch10 = doc.addObject("Sketcher::SketchObject", "Sketch009")
body8.addObject(sketch10)
sketch10.AttachmentSupport = (doc.getObject("XZ_Plane007"), [""])
sketch10.MapMode = "FlatFace"
sketch10.addGeometry(Part.LineSegment(App.Vector(1788.3, 241.3, 0), App.Vector(2228.8, 241.3, 0)), False)
sketch10.addGeometry(Part.LineSegment(App.Vector(2228.8, 241.3, 0), App.Vector(2228.8, 266.7, 0)), False)
sketch10.addGeometry(Part.LineSegment(App.Vector(2228.8, 266.7, 0), App.Vector(1788.3, 266.7, 0)), False)
sketch10.addGeometry(Part.LineSegment(App.Vector(1788.3, 266.7, 0), App.Vector(1788.3, 241.3, 0)), False)
sketch10.addGeometry(Part.Circle(App.Vector(1832.8, 254, 0), App.Vector(0, 0, 1), 3.2), False)
sketch10.addGeometry(Part.Circle(App.Vector(2184.4, 254, 0), App.Vector(0, 0, 1), 3.2), False)
sketch10.addConstraint(Sketcher.Constraint("Coincident", 0, 2, 1, 1))
sketch10.addConstraint(Sketcher.Constraint("Coincident", 1, 2, 2, 1))
sketch10.addConstraint(Sketcher.Constraint("Coincident", 2, 2, 3, 1))
sketch10.addConstraint(Sketcher.Constraint("Coincident", 3, 2, 0, 1))
sketch10.addConstraint(Sketcher.Constraint("Horizontal", 0))
sketch10.addConstraint(Sketcher.Constraint("Vertical", 1))
sketch10.addConstraint(Sketcher.Constraint("Horizontal", 2))
sketch10.addConstraint(Sketcher.Constraint("Vertical", 3))
sketch10.addConstraint(Sketcher.Constraint("Equal", 4, 5))
sketch10.addConstraint(Sketcher.Constraint("Horizontal", 4, 3, 5, 3))
sketch10.addConstraint(Sketcher.Constraint("Diameter", 4, Q("0.25 in")))
sketch10.addConstraint(Sketcher.Constraint("DistanceY", 1, 1, 1, 2, Q("1 in")))
sketch10.addConstraint(Sketcher.Constraint("DistanceY", -1, 1, 4, 3, Q("10 in")))
sketch10.addConstraint(Sketcher.Constraint("DistanceX", -1, 1, 5, 3, Q("86 in")))
sketch10.addConstraint(Sketcher.Constraint("DistanceY", -1, 1, 0, 2, Q("9.5 in")))
sketch10.addConstraint(Sketcher.Constraint("DistanceX", 0, 1, 0, 2, Q("17.34375 in")))
sketch10.addConstraint(Sketcher.Constraint("DistanceX", -1, 1, 0, 2, Q("87.75 in")))
sketch10.addConstraint(Sketcher.Constraint("DistanceX", -1, 1, 4, 3, Q("1832.768598 mm")))
pad9 = doc.addObject("PartDesign::Pad", "Pad008")
body8.addObject(pad9)
pad9.Profile = sketch10
pad9.Length = Q("1.5 in")
body9 = doc.addObject("PartDesign::Body", "Body008")

# Sketch on XZ plane
sketch11 = doc.addObject("Sketcher::SketchObject", "Sketch010")
body9.addObject(sketch11)
sketch11.AttachmentSupport = (doc.getObject("XZ_Plane008"), [""])
sketch11.MapMode = "FlatFace"
sketch11.addGeometry(Part.LineSegment(App.Vector(2245.5, 241.3, 0), App.Vector(2686.1, 241.3, 0)), False)
sketch11.addGeometry(Part.LineSegment(App.Vector(2686.1, 241.3, 0), App.Vector(2686.1, 266.7, 0)), False)
sketch11.addGeometry(Part.LineSegment(App.Vector(2686.1, 266.7, 0), App.Vector(2245.5, 266.7, 0)), False)
sketch11.addGeometry(Part.LineSegment(App.Vector(2245.5, 266.7, 0), App.Vector(2245.5, 241.3, 0)), False)
sketch11.addGeometry(Part.Circle(App.Vector(2290, 254, 0), App.Vector(0, 0, 1), 3.2), False)
sketch11.addGeometry(Part.Circle(App.Vector(2641.6, 254, 0), App.Vector(0, 0, 1), 3.2), False)
sketch11.addConstraint(Sketcher.Constraint("Coincident", 0, 2, 1, 1))
sketch11.addConstraint(Sketcher.Constraint("Coincident", 1, 2, 2, 1))
sketch11.addConstraint(Sketcher.Constraint("Coincident", 2, 2, 3, 1))
sketch11.addConstraint(Sketcher.Constraint("Coincident", 3, 2, 0, 1))
sketch11.addConstraint(Sketcher.Constraint("Horizontal", 0))
sketch11.addConstraint(Sketcher.Constraint("Vertical", 1))
sketch11.addConstraint(Sketcher.Constraint("Horizontal", 2))
sketch11.addConstraint(Sketcher.Constraint("Vertical", 3))
sketch11.addConstraint(Sketcher.Constraint("Equal", 4, 5))
sketch11.addConstraint(Sketcher.Constraint("Horizontal", 4, 3, 5, 3))
sketch11.addConstraint(Sketcher.Constraint("Diameter", 4, Q("0.25 in")))
sketch11.addConstraint(Sketcher.Constraint("DistanceY", 1, 1, 1, 2, Q("1 in")))
sketch11.addConstraint(Sketcher.Constraint("DistanceY", -1, 1, 4, 3, Q("10 in")))
sketch11.addConstraint(Sketcher.Constraint("DistanceX", -1, 1, 5, 3, Q("104 in")))
sketch11.addConstraint(Sketcher.Constraint("DistanceY", -1, 1, 0, 2, Q("9.5 in")))
sketch11.addConstraint(Sketcher.Constraint("DistanceX", 0, 1, 0, 2, Q("17.34375 in")))
sketch11.addConstraint(Sketcher.Constraint("DistanceX", -1, 1, 0, 2, Q("105.75 in")))
sketch11.addConstraint(Sketcher.Constraint("DistanceX", -1, 1, 4, 3, Q("2289.968598 mm")))
pad10 = doc.addObject("PartDesign::Pad", "Pad009")
body9.addObject(pad10)
pad10.Profile = sketch11
pad10.Length = Q("1.5 in")
body10 = doc.addObject("PartDesign::Body", "Body009")

# Sketch on XZ plane
sketch12 = doc.addObject("Sketcher::SketchObject", "Sketch011")
body10.addObject(sketch12)
sketch12.AttachmentSupport = (doc.getObject("XZ_Plane009"), [""])
sketch12.MapMode = "FlatFace"
sketch12.addGeometry(Part.LineSegment(App.Vector(2702.7, 241.3, 0), App.Vector(3143.2, 241.3, 0)), False)
sketch12.addGeometry(Part.LineSegment(App.Vector(3143.2, 241.3, 0), App.Vector(3143.2, 266.7, 0)), False)
sketch12.addGeometry(Part.LineSegment(App.Vector(3143.2, 266.7, 0), App.Vector(2702.7, 266.7, 0)), False)
sketch12.addGeometry(Part.LineSegment(App.Vector(2702.7, 266.7, 0), App.Vector(2702.7, 241.3, 0)), False)
sketch12.addGeometry(Part.Circle(App.Vector(2747.2, 254, 0), App.Vector(0, 0, 1), 3.2), False)
sketch12.addGeometry(Part.Circle(App.Vector(3098.8, 254, 0), App.Vector(0, 0, 1), 3.2), False)
sketch12.addConstraint(Sketcher.Constraint("Coincident", 0, 2, 1, 1))
sketch12.addConstraint(Sketcher.Constraint("Coincident", 1, 2, 2, 1))
sketch12.addConstraint(Sketcher.Constraint("Coincident", 2, 2, 3, 1))
sketch12.addConstraint(Sketcher.Constraint("Coincident", 3, 2, 0, 1))
sketch12.addConstraint(Sketcher.Constraint("Horizontal", 0))
sketch12.addConstraint(Sketcher.Constraint("Vertical", 1))
sketch12.addConstraint(Sketcher.Constraint("Horizontal", 2))
sketch12.addConstraint(Sketcher.Constraint("Vertical", 3))
sketch12.addConstraint(Sketcher.Constraint("Equal", 4, 5))
sketch12.addConstraint(Sketcher.Constraint("Horizontal", 4, 3, 5, 3))
sketch12.addConstraint(Sketcher.Constraint("Diameter", 4, Q("0.25 in")))
sketch12.addConstraint(Sketcher.Constraint("DistanceY", 1, 1, 1, 2, Q("1 in")))
sketch12.addConstraint(Sketcher.Constraint("DistanceY", -1, 1, 4, 3, Q("10 in")))
sketch12.addConstraint(Sketcher.Constraint("DistanceX", -1, 1, 5, 3, Q("122 in")))
sketch12.addConstraint(Sketcher.Constraint("DistanceY", -1, 1, 0, 2, Q("9.5 in")))
sketch12.addConstraint(Sketcher.Constraint("DistanceX", 0, 1, 0, 2, Q("17.34375 in")))
sketch12.addConstraint(Sketcher.Constraint("DistanceX", -1, 1, 0, 2, Q("123.75 in")))
sketch12.addConstraint(Sketcher.Constraint("DistanceX", -1, 1, 4, 3, Q("2747.168598 mm")))
pad11 = doc.addObject("PartDesign::Pad", "Pad010")
body10.addObject(pad11)
pad11.Profile = sketch12
pad11.Length = Q("1.5 in")

doc.recompute()
